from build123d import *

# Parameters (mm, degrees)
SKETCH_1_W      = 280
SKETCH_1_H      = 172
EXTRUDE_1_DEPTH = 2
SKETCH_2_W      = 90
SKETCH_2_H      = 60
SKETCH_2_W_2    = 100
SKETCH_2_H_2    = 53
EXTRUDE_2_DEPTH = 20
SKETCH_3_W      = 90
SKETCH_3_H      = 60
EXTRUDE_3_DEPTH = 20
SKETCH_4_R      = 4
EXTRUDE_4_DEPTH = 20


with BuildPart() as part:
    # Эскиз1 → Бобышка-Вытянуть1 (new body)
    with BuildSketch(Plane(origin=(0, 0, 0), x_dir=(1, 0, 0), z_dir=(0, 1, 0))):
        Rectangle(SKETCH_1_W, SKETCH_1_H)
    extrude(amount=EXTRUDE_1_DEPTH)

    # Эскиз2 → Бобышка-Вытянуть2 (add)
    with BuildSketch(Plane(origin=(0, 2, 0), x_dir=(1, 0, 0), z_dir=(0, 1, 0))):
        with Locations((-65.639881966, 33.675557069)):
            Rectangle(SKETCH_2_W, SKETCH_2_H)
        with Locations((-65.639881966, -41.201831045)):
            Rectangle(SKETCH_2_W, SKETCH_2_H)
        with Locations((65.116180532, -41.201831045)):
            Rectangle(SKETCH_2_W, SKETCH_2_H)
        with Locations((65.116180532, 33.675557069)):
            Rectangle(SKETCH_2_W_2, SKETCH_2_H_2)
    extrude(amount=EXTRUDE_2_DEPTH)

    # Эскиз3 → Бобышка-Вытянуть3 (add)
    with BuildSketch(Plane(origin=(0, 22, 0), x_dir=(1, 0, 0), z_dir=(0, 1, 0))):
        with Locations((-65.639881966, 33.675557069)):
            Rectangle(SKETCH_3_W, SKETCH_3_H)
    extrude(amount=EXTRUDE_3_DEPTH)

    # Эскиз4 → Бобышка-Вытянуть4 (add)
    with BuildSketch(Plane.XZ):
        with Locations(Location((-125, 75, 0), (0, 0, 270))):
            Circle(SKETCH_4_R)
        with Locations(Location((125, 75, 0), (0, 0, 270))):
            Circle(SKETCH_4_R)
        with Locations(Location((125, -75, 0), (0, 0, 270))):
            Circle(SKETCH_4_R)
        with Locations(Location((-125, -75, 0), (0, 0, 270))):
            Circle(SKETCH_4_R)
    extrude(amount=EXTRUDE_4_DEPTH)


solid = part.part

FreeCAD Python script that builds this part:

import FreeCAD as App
import Part
import Sketcher

V = App.Vector

doc = App.newDocument("Part")
params = doc.addObject("Spreadsheet::Sheet", "Params")
for row, (alias, value) in enumerate([
    ("sketch1_width", "280 mm"),
    ("sketch1_height", "172 mm"),
    ("pad1_length", "2 mm"),
    ("sketch2_width", "90 mm"),
    ("sketch2_width2", "100 mm"),
    ("sketch2_height", "60 mm"),
    ("sketch2_height2", "53 mm"),
    ("pad2_length", "20 mm"),
    ("sketch3_width", "90 mm"),
    ("sketch3_height", "60 mm"),
    ("pad3_length", "20 mm"),
    ("sketch4_diameter", "8 mm"),
    ("pad4_length", "20 mm"),
], start=1):
    params.set(f"A{row}", alias)
    params.set(f"B{row}", "=" + value)
    params.setAlias(f"B{row}", alias)

body = doc.addObject("PartDesign::Body", "Body")

# Sketch on XZ plane
sketch1 = body.newObject("Sketcher::SketchObject", "Sketch")
sketch1.AttachmentSupport = (doc.getObject("XZ_Plane"), [""])
sketch1.MapMode = "FlatFace"
sketch1.addGeometry([
    Part.LineSegment(V(-140, -86, 0), V(-140, 86, 0)),
    Part.LineSegment(V(-140, 86, 0), V(140, 86, 0)),
    Part.LineSegment(V(140, 86, 0), V(140, -86, 0)),
    Part.LineSegment(V(140, -86, 0), V(-140, -86, 0)),
], False)
sketch1.addConstraint([
    Sketcher.Constraint("Coincident", 0, 2, 1, 1),
    Sketcher.Constraint("Coincident", 1, 2, 2, 1),
    Sketcher.Constraint("Coincident", 2, 2, 3, 1),
    Sketcher.Constraint("Coincident", 3, 2, 0, 1),
    Sketcher.Constraint("Vertical", 0),
    Sketcher.Constraint("Horizontal", 1),
    Sketcher.Constraint("Vertical", 2),
    Sketcher.Constraint("Horizontal", 3),
    Sketcher.Constraint("Symmetric", 0, 2, 2, 2, -1, 1),
    Sketcher.Constraint("DistanceX", 1, 1, 1, 2, 280.0),
    Sketcher.Constraint("DistanceY", 0, 1, 0, 2, 172.0),
])
sketch1.setExpression("Constraints[9]", "Params.sketch1_width")
sketch1.setExpression("Constraints[10]", "Params.sketch1_height")
pad1 = body.newObject("PartDesign::Pad", "Pad")
pad1.Profile = sketch1
pad1.setExpression("Length", "Params.pad1_length")
pad1.Reversed = True

# Sketch on XZ plane
sketch2 = body.newObject("Sketcher::SketchObject", "Sketch001")
sketch2.AttachmentSupport = (doc.getObject("XZ_Plane"), [""])
sketch2.MapMode = "FlatFace"
sketch2.AttachmentOffset = App.Placement(V(0, 0, -2), App.Rotation())
sketch2.addGeometry([
    Part.LineSegment(V(-111, -64, 0), V(-111, -4, 0)),  # 0
    Part.LineSegment(V(-111, -4, 0), V(-21, -4, 0)),  # 1
    Part.LineSegment(V(-21, -4, 0), V(-21, -64, 0)),  # 2
    Part.LineSegment(V(-21, -64, 0), V(-111, -64, 0)),  # 3
    Part.LineSegment(V(-111, 11, 0), V(-111, 71, 0)),  # 4
    Part.LineSegment(V(-111, 71, 0), V(-21, 71, 0)),  # 5
    Part.LineSegment(V(-21, 71, 0), V(-21, 11, 0)),  # 6
    Part.LineSegment(V(-21, 11, 0), V(-111, 11, 0)),  # 7
    Part.LineSegment(V(20, 11, 0), V(20, 71, 0)),  # 8
    Part.LineSegment(V(20, 71, 0), V(110, 71, 0)),  # 9
    Part.LineSegment(V(110, 71, 0), V(110, 11, 0)),  # 10
    Part.LineSegment(V(110, 11, 0), V(20, 11, 0)),  # 11
    Part.LineSegment(V(15, -60, 0), V(15, -7, 0)),  # 12
    Part.LineSegment(V(15, -7, 0), V(115, -7, 0)),  # 13
    Part.LineSegment(V(115, -7, 0), V(115, -60, 0)),  # 14
    Part.LineSegment(V(115, -60, 0), V(15, -60, 0)),  # 15
], False)
sketch2.addConstraint([
    Sketcher.Constraint("Coincident", 0, 2, 1, 1),
    Sketcher.Constraint("Coincident", 1, 2, 2, 1),
    Sketcher.Constraint("Coincident", 2, 2, 3, 1),
    Sketcher.Constraint("Coincident", 3, 2, 0, 1),
    Sketcher.Constraint("Coincident", 4, 2, 5, 1),
    Sketcher.Constraint("Coincident", 5, 2, 6, 1),
    Sketcher.Constraint("Coincident", 6, 2, 7, 1),
    Sketcher.Constraint("Coincident", 7, 2, 4, 1),
    Sketcher.Constraint("Coincident", 8, 2, 9, 1),
    Sketcher.Constraint("Coincident", 9, 2, 10, 1),
    Sketcher.Constraint("Coincident", 10, 2, 11, 1),
    Sketcher.Constraint("Coincident", 11, 2, 8, 1),
    Sketcher.Constraint("Coincident", 12, 2, 13, 1),
    Sketcher.Constraint("Coincident", 13, 2, 14, 1),
    Sketcher.Constraint("Coincident", 14, 2, 15, 1),
    Sketcher.Constraint("Coincident", 15, 2, 12, 1),
    Sketcher.Constraint("Vertical", 0),
    Sketcher.Constraint("Horizontal", 1),
    Sketcher.Constraint("Vertical", 2),
    Sketcher.Constraint("Horizontal", 3),
    Sketcher.Constraint("Vertical", 4),
    Sketcher.Constraint("Horizontal", 5),
    Sketcher.Constraint("Vertical", 6),
    Sketcher.Constraint("Horizontal", 7),
    Sketcher.Constraint("Vertical", 8),
    Sketcher.Constraint("Horizontal", 9),
    Sketcher.Constraint("Vertical", 10),
    Sketcher.Constraint("Horizontal", 11),
    Sketcher.Constraint("Vertical", 12),
    Sketcher.Constraint("Horizontal", 13),
    Sketcher.Constraint("Vertical", 14),
    Sketcher.Constraint("Horizontal", 15),
    Sketcher.Constraint("Horizontal", 5, 2, 8, 2),
    Sketcher.Constraint("Horizontal", 7, 2, 10, 2),
    Sketcher.Constraint("Vertical", 3, 2, 4, 2),
    Sketcher.Constraint("Vertical", 2, 2, 5, 2),
    Sketcher.Constraint("Equal", 7, 9),
    Sketcher.Constraint("Equal", 2, 4),
    Sketcher.Constraint("DistanceX", 1, 1, 1, 2, 90.0),
    Sketcher.Constraint("DistanceX", 13, 1, 13, 2, 100.0),
    Sketcher.Constraint("DistanceY", 0, 1, 0, 2, 60.0),
    Sketcher.Constraint("DistanceY", 12, 1, 12, 2, 53.0),
    Sketcher.Constraint("DistanceX", 12, 2, 11, 2, 5.0),
    Sketcher.Constraint("DistanceY", 12, 2, 1, 2, 3.5),
    Sketcher.Constraint("DistanceX", 0, 2, -1, 1, 110.639882),
    Sketcher.Constraint("DistanceY", -1, 1, 4, 2, 71.201831),
    Sketcher.Constraint("DistanceX", -1, 1, 8, 2, 20.116181),
    Sketcher.Constraint("DistanceY", 0, 2, 4, 2, 74.877388),
])
sketch2.setExpression("Constraints[38]", "Params.sketch2_width")
sketch2.setExpression("Constraints[39]", "Params.sketch2_width2")
sketch2.setExpression("Constraints[40]", "Params.sketch2_height")
sketch2.setExpression("Constraints[41]", "Params.sketch2_height2")
pad2 = body.newObject("PartDesign::Pad", "Pad001")
pad2.Profile = sketch2
pad2.setExpression("Length", "Params.pad2_length")
pad2.Reversed = True

# Sketch on XZ plane
sketch3 = body.newObject("Sketcher::SketchObject", "Sketch002")
sketch3.AttachmentSupport = (doc.getObject("XZ_Plane"), [""])
sketch3.MapMode = "FlatFace"
sketch3.AttachmentOffset = App.Placement(V(0, 0, -22), App.Rotation())
sketch3.addGeometry([
    Part.LineSegment(V(-111, -64, 0), V(-111, -4, 0)),
    Part.LineSegment(V(-111, -4, 0), V(-21, -4, 0)),
    Part.LineSegment(V(-21, -4, 0), V(-21, -64, 0)),
    Part.LineSegment(V(-21, -64, 0), V(-111, -64, 0)),
], False)
sketch3.addConstraint([
    Sketcher.Constraint("Coincident", 0, 2, 1, 1),
    Sketcher.Constraint("Coincident", 1, 2, 2, 1),
    Sketcher.Constraint("Coincident", 2, 2, 3, 1),
    Sketcher.Constraint("Coincident", 3, 2, 0, 1),
    Sketcher.Constraint("Vertical", 0),
    Sketcher.Constraint("Horizontal", 1),
    Sketcher.Constraint("Vertical", 2),
    Sketcher.Constraint("Horizontal", 3),
    Sketcher.Constraint("DistanceX", 1, 1, 1, 2, 90.0),
    Sketcher.Constraint("DistanceY", 0, 1, 0, 2, 60.0),
    Sketcher.Constraint("DistanceX", 0, 2, -1, 1, 110.639882),
    Sketcher.Constraint("DistanceY", 0, 2, -1, 1, 3.675557),
])
sketch3.setExpression("Constraints[8]", "Params.sketch3_width")
sketch3.setExpression("Constraints[9]", "Params.sketch3_height")
pad3 = body.newObject("PartDesign::Pad", "Pad002")
pad3.Profile = sketch3
pad3.setExpression("Length", "Params.pad3_length")
pad3.Reversed = True

# Sketch on XZ plane
sketch4 = body.newObject("Sketcher::SketchObject", "Sketch003")
sketch4.AttachmentSupport = (doc.getObject("XZ_Plane"), [""])
sketch4.MapMode = "FlatFace"
sketch4.addGeometry([
    Part.Circle(V(-125, 75, 0), V(0, 0, 1), 4),
    Part.Circle(V(125, 75, 0), V(0, 0, 1), 4),
    Part.Circle(V(125, -75, 0), V(0, 0, 1), 4),
    Part.Circle(V(-125, -75, 0), V(0, 0, 1), 4),
], False)
sketch4.addConstraint([
    Sketcher.Constraint("Equal", 0, 1),
    Sketcher.Constraint("Equal", 1, 2),
    Sketcher.Constraint("Equal", 2, 3),
    Sketcher.Constraint("Symmetric", 0, 3, 2, 3, -1, 1),
    Sketcher.Constraint("Symmetric", 1, 3, 3, 3, -1, 1),
    Sketcher.Constraint("Symmetric", 0, 3, 1, 3, -2),
    Sketcher.Constraint("Diameter", 0, 8.0),
    Sketcher.Constraint("DistanceX", 0, 3, -1, 1, 125.0),
    Sketcher.Constraint("DistanceY", -1, 1, 0, 3, 75.0),
])
sketch4.setExpression("Constraints[6]", "Params.sketch4_diameter")
pad4 = body.newObject("PartDesign::Pad", "Pad003")
pad4.Profile = sketch4
pad4.setExpression("Length", "Params.pad4_length")

doc.recompute()
